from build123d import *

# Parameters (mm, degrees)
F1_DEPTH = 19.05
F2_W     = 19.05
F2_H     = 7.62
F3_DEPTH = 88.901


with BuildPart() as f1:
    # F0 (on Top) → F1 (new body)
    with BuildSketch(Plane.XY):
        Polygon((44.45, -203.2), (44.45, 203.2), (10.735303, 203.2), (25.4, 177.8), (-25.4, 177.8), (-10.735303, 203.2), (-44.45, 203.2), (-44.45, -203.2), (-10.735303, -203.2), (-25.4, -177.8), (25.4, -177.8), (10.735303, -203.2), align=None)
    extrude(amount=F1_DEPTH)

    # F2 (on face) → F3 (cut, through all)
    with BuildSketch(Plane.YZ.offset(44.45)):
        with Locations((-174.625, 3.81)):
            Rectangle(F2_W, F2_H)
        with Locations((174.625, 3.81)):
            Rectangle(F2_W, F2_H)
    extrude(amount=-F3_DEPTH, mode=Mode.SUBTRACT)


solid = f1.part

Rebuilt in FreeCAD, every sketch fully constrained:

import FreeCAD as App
import Part
import Sketcher
from FreeCAD import Vector
Q = App.Units.Quantity


def add_polygon(sketch, points):
    """Adds a closed chain of lines whose ends are joined by coincident constraints."""
    first, n = sketch.GeometryCount, len(points)
    for a, b in zip(points, points[1:] + points[:1]):
        sketch.addGeometry(Part.LineSegment(App.Vector(*a, 0), App.Vector(*b, 0)), False)
    for i in range(n):
        sketch.addConstraint(Sketcher.Constraint("Coincident", first + i, 2, first + (i + 1) % n, 1))

doc = App.newDocument("Part")
body = doc.addObject("PartDesign::Body", "Body")

sketch1 = doc.addObject("Sketcher::SketchObject", "Sketch")
body.addObject(sketch1)
sketch1.AttachmentSupport = (doc.XY_Plane, [""])
sketch1.MapMode = "FlatFace"
add_polygon(sketch1, [(44.45, -203.2), (44.45, 203.2), (10.735303, 203.2), (25.4, 177.8), (-25.4, 177.8), (-10.735303, 203.2), (-44.45, 203.2), (-44.45, -203.2), (-10.735303, -203.2), (-25.4, -177.8), (25.4, -177.8), (10.735303, -203.2)])
sketch1.addConstraint([
    Sketcher.Constraint("Vertical", 0),
    Sketcher.Constraint("Horizontal", 1),
    Sketcher.Constraint("Horizontal", 3),
    Sketcher.Constraint("Horizontal", 5),
    Sketcher.Constraint("Vertical", 6),
    Sketcher.Constraint("Horizontal", 7),
    Sketcher.Constraint("Horizontal", 9),
    Sketcher.Constraint("Horizontal", 11),
    Sketcher.Constraint("Symmetric", 0, 2, 6, 2, -1, 1),
    Sketcher.Constraint("Symmetric", 2, 2, 8, 2, -1, 1),
    Sketcher.Constraint("Symmetric", 4, 2, 10, 2, -1, 1),
    Sketcher.Constraint("Symmetric", 1, 2, 4, 2, -2),
    Sketcher.Constraint("Parallel", 2, 8),
    Sketcher.Constraint("Parallel", 4, 10),
    Sketcher.Constraint("Vertical", 3, 2, 8, 2),
    Sketcher.Constraint("DistanceX", 3, 2, 3, 1, Q("2 in")),
    Sketcher.Constraint("DistanceY", 0, 1, 0, 2, Q("16 in")),
    Sketcher.Constraint("DistanceY", -1, 1, 2, 2, Q("7 in")),
    Sketcher.Constraint("Angle", 2, Q("-60 deg")),
    Sketcher.Constraint("DistanceX", 5, 2, 0, 2, Q("3.5 in")),
])
pad1 = doc.addObject("PartDesign::Pad", "Pad")
body.addObject(pad1)
pad1.Profile = sketch1
pad1.Length = Q("0.75 in")

sketch2 = doc.addObject("Sketcher::SketchObject", "Sketch001")
body.addObject(sketch2)
sketch2.AttachmentSupport = (doc.YZ_Plane, [""])
sketch2.MapMode = "FlatFace"
sketch2.AttachmentOffset = App.Placement(Vector(0, 0, 1.75 * 25.4), App.Rotation())
add_polygon(sketch2, [(-184.15, 7.62), (-184.15, 0), (-165.1, 0), (-165.1, 7.62)])
add_polygon(sketch2, [(165.1, 7.62), (165.1, 0), (184.15, 0), (184.15, 7.62)])
sketch2.addConstraint([
    Sketcher.Constraint("Vertical", 0),
    Sketcher.Constraint("Horizontal", 1),
    Sketcher.Constraint("Vertical", 2),
    Sketcher.Constraint("Horizontal", 3),
    Sketcher.Constraint("Vertical", 4),
    Sketcher.Constraint("Horizontal", 5),
    Sketcher.Constraint("Vertical", 6),
    Sketcher.Constraint("Horizontal", 7),
    Sketcher.Constraint("Symmetric", 1, 2, 4, 2, -1, 1),
    Sketcher.Constraint("Symmetric", 0, 2, 5, 2, -2),
    Sketcher.Constraint("Horizontal", 3, 2, 6, 2),
    Sketcher.Constraint("DistanceY", 0, 2, 0, 1, Q("0.3 in")),
    Sketcher.Constraint("DistanceX", 1, 2, 4, 2, Q("13 in")),
    Sketcher.Constraint("DistanceX", 1, 1, 1, 2, Q("0.75 in")),
])
pocket1 = doc.addObject("PartDesign::Pocket", "Pocket")
body.addObject(pocket1)
pocket1.Profile = sketch2
pocket1.Type = "ThroughAll"

doc.recompute()
